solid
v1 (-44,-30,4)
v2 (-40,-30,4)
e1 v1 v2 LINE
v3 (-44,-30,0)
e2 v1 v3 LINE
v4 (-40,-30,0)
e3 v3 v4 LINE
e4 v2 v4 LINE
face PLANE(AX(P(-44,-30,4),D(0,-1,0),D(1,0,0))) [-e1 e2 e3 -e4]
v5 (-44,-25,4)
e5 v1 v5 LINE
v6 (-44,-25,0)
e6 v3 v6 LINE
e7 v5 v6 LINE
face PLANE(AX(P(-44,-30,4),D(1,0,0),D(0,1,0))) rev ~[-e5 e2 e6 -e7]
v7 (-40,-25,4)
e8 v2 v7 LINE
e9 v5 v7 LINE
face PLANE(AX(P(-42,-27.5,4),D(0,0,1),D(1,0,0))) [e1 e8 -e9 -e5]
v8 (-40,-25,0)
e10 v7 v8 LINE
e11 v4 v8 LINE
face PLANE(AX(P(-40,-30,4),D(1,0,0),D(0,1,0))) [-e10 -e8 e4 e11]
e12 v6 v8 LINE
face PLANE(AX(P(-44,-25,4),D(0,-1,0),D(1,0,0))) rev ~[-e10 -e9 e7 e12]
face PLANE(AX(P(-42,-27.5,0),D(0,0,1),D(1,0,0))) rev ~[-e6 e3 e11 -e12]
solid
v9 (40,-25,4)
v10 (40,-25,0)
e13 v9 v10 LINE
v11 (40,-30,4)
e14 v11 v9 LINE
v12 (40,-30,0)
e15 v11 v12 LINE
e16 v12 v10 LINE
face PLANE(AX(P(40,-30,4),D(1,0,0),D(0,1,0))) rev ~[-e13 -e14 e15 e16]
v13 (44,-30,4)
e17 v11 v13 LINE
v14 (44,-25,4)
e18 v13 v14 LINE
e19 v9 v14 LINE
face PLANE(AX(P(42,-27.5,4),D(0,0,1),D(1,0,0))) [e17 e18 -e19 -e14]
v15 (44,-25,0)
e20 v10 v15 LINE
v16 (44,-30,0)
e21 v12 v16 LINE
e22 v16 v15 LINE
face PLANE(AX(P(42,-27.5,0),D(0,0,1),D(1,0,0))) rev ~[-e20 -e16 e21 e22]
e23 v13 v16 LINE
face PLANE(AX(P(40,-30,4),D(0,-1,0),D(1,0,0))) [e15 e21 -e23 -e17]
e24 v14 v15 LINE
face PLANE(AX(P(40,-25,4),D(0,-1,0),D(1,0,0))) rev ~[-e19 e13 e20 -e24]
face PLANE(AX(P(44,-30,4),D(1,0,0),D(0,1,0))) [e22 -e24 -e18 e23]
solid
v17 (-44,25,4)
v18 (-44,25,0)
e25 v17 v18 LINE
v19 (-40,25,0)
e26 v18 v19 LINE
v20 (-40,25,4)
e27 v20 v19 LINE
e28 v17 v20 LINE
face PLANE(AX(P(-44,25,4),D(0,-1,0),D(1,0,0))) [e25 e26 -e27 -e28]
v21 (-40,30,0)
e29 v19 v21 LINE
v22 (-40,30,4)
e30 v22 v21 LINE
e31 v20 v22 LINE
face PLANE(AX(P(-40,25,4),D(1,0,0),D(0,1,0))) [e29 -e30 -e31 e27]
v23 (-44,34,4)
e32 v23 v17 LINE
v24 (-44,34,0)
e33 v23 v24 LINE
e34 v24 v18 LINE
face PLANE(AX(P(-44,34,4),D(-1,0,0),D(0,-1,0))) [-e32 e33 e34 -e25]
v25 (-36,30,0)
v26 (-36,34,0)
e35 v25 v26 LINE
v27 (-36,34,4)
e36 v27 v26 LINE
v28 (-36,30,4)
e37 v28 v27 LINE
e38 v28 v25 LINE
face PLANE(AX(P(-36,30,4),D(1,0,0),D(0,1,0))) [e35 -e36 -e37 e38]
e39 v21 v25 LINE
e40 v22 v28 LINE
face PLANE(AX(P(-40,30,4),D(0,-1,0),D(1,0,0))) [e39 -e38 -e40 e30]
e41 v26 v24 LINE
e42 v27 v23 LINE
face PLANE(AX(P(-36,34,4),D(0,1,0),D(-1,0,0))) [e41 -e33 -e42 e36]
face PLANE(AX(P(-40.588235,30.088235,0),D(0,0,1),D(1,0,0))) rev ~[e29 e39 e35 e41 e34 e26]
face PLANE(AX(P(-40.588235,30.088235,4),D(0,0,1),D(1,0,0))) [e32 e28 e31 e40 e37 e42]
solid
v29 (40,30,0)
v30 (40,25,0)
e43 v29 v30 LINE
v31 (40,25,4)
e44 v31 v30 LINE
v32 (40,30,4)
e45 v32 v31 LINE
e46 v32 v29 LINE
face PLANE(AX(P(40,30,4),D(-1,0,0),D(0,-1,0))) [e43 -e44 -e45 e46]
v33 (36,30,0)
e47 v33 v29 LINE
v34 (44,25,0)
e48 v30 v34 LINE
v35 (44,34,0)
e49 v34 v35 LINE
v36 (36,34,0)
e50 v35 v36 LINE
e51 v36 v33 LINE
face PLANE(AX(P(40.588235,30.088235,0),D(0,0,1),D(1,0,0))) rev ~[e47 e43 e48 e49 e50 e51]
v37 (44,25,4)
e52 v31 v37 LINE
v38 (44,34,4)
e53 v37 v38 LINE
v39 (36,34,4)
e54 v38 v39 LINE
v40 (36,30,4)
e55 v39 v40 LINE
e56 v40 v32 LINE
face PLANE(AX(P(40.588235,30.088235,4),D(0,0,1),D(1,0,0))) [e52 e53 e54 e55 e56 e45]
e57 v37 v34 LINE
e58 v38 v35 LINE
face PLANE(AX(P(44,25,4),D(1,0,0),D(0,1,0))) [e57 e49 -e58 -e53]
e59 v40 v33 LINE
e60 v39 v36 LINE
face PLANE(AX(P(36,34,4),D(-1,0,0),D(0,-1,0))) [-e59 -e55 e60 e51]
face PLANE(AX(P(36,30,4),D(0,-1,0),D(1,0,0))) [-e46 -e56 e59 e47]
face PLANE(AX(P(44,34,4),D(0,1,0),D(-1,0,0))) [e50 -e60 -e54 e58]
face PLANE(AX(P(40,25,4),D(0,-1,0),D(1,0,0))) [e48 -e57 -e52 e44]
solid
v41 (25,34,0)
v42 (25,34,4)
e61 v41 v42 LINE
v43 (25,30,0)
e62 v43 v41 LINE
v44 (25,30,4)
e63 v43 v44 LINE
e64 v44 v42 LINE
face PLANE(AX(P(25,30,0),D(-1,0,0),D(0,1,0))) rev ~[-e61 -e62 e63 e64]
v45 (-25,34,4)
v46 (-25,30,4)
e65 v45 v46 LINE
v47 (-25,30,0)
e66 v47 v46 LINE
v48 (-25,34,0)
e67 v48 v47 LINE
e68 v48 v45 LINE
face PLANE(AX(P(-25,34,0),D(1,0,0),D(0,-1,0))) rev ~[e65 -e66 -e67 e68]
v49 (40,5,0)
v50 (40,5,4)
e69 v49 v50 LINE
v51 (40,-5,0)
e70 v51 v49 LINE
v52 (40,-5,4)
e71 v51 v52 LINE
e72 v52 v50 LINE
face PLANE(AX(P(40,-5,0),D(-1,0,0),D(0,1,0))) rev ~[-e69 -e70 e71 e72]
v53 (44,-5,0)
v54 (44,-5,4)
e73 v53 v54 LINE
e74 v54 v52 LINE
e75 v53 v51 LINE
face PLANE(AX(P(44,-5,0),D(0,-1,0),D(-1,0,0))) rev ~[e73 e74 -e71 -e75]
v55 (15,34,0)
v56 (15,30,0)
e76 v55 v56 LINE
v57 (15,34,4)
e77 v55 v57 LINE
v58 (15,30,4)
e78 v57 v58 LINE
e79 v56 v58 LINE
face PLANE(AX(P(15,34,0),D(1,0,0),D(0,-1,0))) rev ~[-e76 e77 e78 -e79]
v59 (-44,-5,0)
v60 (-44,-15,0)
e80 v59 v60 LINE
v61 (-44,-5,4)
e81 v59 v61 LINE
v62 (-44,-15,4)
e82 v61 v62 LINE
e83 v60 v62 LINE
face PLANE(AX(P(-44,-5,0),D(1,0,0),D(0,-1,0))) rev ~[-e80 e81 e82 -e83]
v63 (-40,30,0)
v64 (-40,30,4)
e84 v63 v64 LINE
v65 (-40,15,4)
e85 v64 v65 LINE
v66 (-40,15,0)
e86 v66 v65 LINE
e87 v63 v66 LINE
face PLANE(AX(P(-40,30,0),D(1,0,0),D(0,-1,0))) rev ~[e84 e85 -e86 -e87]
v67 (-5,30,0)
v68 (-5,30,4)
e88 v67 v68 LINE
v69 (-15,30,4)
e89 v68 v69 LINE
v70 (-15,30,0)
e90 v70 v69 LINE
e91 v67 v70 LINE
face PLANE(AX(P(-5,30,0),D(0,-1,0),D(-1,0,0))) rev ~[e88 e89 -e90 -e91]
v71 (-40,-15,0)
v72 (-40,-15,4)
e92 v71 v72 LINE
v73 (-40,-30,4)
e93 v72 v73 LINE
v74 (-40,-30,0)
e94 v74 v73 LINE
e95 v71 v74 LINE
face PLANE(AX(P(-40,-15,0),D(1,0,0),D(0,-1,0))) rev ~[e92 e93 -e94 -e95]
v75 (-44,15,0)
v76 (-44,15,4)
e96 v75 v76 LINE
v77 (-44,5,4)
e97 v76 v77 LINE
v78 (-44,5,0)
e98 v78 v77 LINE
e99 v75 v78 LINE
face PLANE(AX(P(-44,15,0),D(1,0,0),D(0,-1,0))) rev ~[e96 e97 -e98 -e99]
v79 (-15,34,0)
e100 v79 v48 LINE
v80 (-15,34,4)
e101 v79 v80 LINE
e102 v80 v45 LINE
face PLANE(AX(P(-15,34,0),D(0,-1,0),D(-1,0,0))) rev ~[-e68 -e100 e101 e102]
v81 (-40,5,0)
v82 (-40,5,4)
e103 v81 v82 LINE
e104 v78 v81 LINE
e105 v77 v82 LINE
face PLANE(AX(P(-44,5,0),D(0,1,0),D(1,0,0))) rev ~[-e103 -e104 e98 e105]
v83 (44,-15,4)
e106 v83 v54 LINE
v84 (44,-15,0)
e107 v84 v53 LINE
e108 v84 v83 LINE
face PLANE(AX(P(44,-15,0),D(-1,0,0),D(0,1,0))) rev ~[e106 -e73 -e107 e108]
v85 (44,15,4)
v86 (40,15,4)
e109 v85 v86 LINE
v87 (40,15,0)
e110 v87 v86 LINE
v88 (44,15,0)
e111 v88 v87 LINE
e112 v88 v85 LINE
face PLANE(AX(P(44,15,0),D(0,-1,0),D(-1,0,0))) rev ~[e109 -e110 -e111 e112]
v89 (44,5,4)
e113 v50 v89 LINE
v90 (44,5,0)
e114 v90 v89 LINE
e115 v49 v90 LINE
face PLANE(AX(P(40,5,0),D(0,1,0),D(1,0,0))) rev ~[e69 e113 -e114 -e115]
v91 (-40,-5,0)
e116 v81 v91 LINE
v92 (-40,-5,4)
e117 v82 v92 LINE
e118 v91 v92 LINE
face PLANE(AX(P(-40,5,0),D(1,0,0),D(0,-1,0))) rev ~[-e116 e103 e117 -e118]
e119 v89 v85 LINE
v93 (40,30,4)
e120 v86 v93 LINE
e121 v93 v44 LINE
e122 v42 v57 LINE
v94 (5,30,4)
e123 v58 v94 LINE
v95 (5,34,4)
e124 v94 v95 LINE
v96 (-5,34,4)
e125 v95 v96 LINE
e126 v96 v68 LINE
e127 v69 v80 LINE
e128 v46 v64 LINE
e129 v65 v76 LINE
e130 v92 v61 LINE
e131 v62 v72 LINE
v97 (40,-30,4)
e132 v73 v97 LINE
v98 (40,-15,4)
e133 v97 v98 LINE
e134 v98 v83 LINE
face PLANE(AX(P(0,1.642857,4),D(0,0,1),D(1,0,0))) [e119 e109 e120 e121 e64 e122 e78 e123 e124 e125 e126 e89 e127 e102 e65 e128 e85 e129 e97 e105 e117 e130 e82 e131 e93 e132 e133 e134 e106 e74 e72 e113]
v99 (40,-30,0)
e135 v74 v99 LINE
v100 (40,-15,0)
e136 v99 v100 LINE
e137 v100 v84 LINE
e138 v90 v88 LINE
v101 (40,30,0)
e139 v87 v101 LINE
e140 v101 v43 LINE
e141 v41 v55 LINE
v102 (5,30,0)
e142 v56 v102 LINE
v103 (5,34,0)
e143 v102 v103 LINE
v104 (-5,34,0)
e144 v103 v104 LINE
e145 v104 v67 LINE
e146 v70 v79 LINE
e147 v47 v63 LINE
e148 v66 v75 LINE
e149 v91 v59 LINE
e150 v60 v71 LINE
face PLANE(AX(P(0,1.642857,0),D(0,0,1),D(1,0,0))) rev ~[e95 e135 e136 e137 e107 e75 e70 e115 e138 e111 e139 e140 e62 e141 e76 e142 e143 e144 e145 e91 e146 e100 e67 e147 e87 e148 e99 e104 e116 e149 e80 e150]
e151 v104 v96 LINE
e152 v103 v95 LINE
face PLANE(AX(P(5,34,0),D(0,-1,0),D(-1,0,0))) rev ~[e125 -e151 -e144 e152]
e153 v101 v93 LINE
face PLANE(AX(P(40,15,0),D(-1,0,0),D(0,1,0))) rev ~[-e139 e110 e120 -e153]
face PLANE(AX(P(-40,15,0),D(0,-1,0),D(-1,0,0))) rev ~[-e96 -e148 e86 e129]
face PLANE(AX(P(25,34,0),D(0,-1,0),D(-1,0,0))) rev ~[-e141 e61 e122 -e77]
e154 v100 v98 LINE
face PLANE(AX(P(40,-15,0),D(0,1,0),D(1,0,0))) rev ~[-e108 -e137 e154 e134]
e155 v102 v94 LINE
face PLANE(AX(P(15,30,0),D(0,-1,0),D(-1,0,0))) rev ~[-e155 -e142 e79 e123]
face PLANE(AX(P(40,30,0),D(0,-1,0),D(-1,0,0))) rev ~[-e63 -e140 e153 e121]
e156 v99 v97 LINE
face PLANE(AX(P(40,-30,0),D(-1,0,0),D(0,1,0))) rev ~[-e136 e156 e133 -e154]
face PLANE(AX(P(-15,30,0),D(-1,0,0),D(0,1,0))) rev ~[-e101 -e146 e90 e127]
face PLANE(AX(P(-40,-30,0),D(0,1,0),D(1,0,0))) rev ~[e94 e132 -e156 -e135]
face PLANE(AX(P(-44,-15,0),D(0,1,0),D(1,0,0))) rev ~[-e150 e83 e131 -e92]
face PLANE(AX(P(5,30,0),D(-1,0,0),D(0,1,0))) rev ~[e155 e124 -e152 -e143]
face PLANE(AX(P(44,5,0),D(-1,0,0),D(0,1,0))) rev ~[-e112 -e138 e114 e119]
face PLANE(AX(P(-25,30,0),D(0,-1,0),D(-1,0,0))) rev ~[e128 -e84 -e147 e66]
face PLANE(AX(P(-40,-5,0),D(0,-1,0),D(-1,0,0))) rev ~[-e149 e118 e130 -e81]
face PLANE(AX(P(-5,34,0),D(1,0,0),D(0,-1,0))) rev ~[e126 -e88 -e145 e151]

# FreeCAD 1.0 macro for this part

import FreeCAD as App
import Part
import Sketcher
from FreeCAD import Vector

doc = App.newDocument("Part")
body = doc.addObject("PartDesign::Body", "Body")

sketch1 = body.newObject("Sketcher::SketchObject", "Sketch")
sketch1.AttachmentSupport = (doc.getObject("XY_Plane"), [""])
sketch1.MapMode = "FlatFace"
sketch1.addGeometry([
    Part.LineSegment(Vector(-40, 30, 0), Vector(-40, 15, 0)),
    Part.LineSegment(Vector(-40, 15, 0), Vector(-44, 15, 0)),
    Part.LineSegment(Vector(-44, 15, 0), Vector(-44, 5, 0)),
    Part.LineSegment(Vector(-44, 5, 0), Vector(-40, 5, 0)),
    Part.LineSegment(Vector(-40, 5, 0), Vector(-40, -5, 0)),
    Part.LineSegment(Vector(-40, -5, 0), Vector(-44, -5, 0)),
    Part.LineSegment(Vector(-44, -5, 0), Vector(-44, -15, 0)),
    Part.LineSegment(Vector(-44, -15, 0), Vector(-40, -15, 0)),
    Part.LineSegment(Vector(-40, -15, 0), Vector(-40, -30, 0)),
    Part.LineSegment(Vector(-40, -30, 0), Vector(40, -30, 0)),
    Part.LineSegment(Vector(40, -30, 0), Vector(40, -15, 0)),
    Part.LineSegment(Vector(40, -15, 0), Vector(44, -15, 0)),
    Part.LineSegment(Vector(44, -15, 0), Vector(44, -5, 0)),
    Part.LineSegment(Vector(44, -5, 0), Vector(40, -5, 0)),
    Part.LineSegment(Vector(40, -5, 0), Vector(40, 5, 0)),
    Part.LineSegment(Vector(40, 5, 0), Vector(44, 5, 0)),
    Part.LineSegment(Vector(44, 5, 0), Vector(44, 15, 0)),
    Part.LineSegment(Vector(44, 15, 0), Vector(40, 15, 0)),
    Part.LineSegment(Vector(40, 15, 0), Vector(40, 30, 0)),
    Part.LineSegment(Vector(40, 30, 0), Vector(25, 30, 0)),
    Part.LineSegment(Vector(25, 30, 0), Vector(25, 34, 0)),
    Part.LineSegment(Vector(25, 34, 0), Vector(15, 34, 0)),
    Part.LineSegment(Vector(15, 34, 0), Vector(15, 30, 0)),
    Part.LineSegment(Vector(15, 30, 0), Vector(5, 30, 0)),
    Part.LineSegment(Vector(5, 30, 0), Vector(5, 34, 0)),
    Part.LineSegment(Vector(5, 34, 0), Vector(-5, 34, 0)),
    Part.LineSegment(Vector(-5, 34, 0), Vector(-5, 30, 0)),
    Part.LineSegment(Vector(-5, 30, 0), Vector(-15, 30, 0)),
    Part.LineSegment(Vector(-15, 30, 0), Vector(-15, 34, 0)),
    Part.LineSegment(Vector(-15, 34, 0), Vector(-25, 34, 0)),
    Part.LineSegment(Vector(-25, 34, 0), Vector(-25, 30, 0)),
    Part.LineSegment(Vector(-25, 30, 0), Vector(-40, 30, 0)),
], False)
sketch1.addConstraint([
    Sketcher.Constraint("Coincident", 0, 2, 1, 1),
    Sketcher.Constraint("Coincident", 1, 2, 2, 1),
    Sketcher.Constraint("Coincident", 2, 2, 3, 1),
    Sketcher.Constraint("Coincident", 3, 2, 4, 1),
    Sketcher.Constraint("Coincident", 4, 2, 5, 1),
    Sketcher.Constraint("Coincident", 5, 2, 6, 1),
    Sketcher.Constraint("Coincident", 6, 2, 7, 1),
    Sketcher.Constraint("Coincident", 7, 2, 8, 1),
    Sketcher.Constraint("Coincident", 8, 2, 9, 1),
    Sketcher.Constraint("Coincident", 9, 2, 10, 1),
    Sketcher.Constraint("Coincident", 10, 2, 11, 1),
    Sketcher.Constraint("Coincident", 11, 2, 12, 1),
    Sketcher.Constraint("Coincident", 12, 2, 13, 1),
    Sketcher.Constraint("Coincident", 13, 2, 14, 1),
    Sketcher.Constraint("Coincident", 14, 2, 15, 1),
    Sketcher.Constraint("Coincident", 15, 2, 16, 1),
    Sketcher.Constraint("Coincident", 16, 2, 17, 1),
    Sketcher.Constraint("Coincident", 17, 2, 18, 1),
    Sketcher.Constraint("Coincident", 18, 2, 19, 1),
    Sketcher.Constraint("Coincident", 19, 2, 20, 1),
    Sketcher.Constraint("Coincident", 20, 2, 21, 1),
    Sketcher.Constraint("Coincident", 21, 2, 22, 1),
    Sketcher.Constraint("Coincident", 22, 2, 23, 1),
    Sketcher.Constraint("Coincident", 23, 2, 24, 1),
    Sketcher.Constraint("Coincident", 24, 2, 25, 1),
    Sketcher.Constraint("Coincident", 25, 2, 26, 1),
    Sketcher.Constraint("Coincident", 26, 2, 27, 1),
    Sketcher.Constraint("Coincident", 27, 2, 28, 1),
    Sketcher.Constraint("Coincident", 28, 2, 29, 1),
    Sketcher.Constraint("Coincident", 29, 2, 30, 1),
    Sketcher.Constraint("Coincident", 30, 2, 31, 1),
    Sketcher.Constraint("Coincident", 31, 2, 0, 1),
    Sketcher.Constraint("Vertical", 0),
    Sketcher.Constraint("Horizontal", 1),
    Sketcher.Constraint("Vertical", 2),
    Sketcher.Constraint("Horizontal", 3),
    Sketcher.Constraint("Vertical", 4),
    Sketcher.Constraint("Horizontal", 5),
    Sketcher.Constraint("Vertical", 6),
    Sketcher.Constraint("Horizontal", 7),
    Sketcher.Constraint("Vertical", 8),
    Sketcher.Constraint("Horizontal", 9),
    Sketcher.Constraint("Vertical", 10),
    Sketcher.Constraint("Horizontal", 11),
    Sketcher.Constraint("Vertical", 12),
    Sketcher.Constraint("Horizontal", 13),
    Sketcher.Constraint("Vertical", 14),
    Sketcher.Constraint("Horizontal", 15),
    Sketcher.Constraint("Vertical", 16),
    Sketcher.Constraint("Horizontal", 17),
    Sketcher.Constraint("Vertical", 18),
    Sketcher.Constraint("Horizontal", 19),
    Sketcher.Constraint("Vertical", 20),
    Sketcher.Constraint("Horizontal", 21),
    Sketcher.Constraint("Vertical", 22),
    Sketcher.Constraint("Horizontal", 23),
    Sketcher.Constraint("Vertical", 24),
    Sketcher.Constraint("Horizontal", 25),
    Sketcher.Constraint("Vertical", 26),
    Sketcher.Constraint("Horizontal", 27),
    Sketcher.Constraint("Vertical", 28),
    Sketcher.Constraint("Horizontal", 29),
    Sketcher.Constraint("Vertical", 30),
    Sketcher.Constraint("Horizontal", 31),
    Sketcher.Constraint("Symmetric", 0, 2, 10, 2, -1, 1),
    Sketcher.Constraint("Symmetric", 2, 2, 12, 2, -1, 1),
    Sketcher.Constraint("Symmetric", 4, 2, 14, 2, -1, 1),
    Sketcher.Constraint("Symmetric", 6, 2, 16, 2, -1, 1),
    Sketcher.Constraint("Symmetric", 8, 2, 18, 2, -1, 1),
    Sketcher.Constraint("Symmetric", 7, 2, 10, 2, -2),
    Sketcher.Constraint("Symmetric", 5, 2, 12, 2, -2),
    Sketcher.Constraint("Symmetric", 23, 2, 26, 2, -2),
    Sketcher.Constraint("Symmetric", 21, 2, 28, 2, -2),
    Sketcher.Constraint("Symmetric", 19, 2, 30, 2, -2),
    Sketcher.Constraint("Horizontal", 19, 2, 22, 2),
    Sketcher.Constraint("Horizontal", 21, 2, 24, 2),
    Sketcher.Constraint("Vertical", 0, 2, 3, 2),
    Sketcher.Constraint("Equal", 21, 23),
    Sketcher.Constraint("Equal", 23, 25),
    Sketcher.Constraint("Equal", 31, 0),
    Sketcher.Constraint("Equal", 29, 2),
    Sketcher.Constraint("Equal", 2, 4),
    Sketcher.Constraint("Equal", 17, 20),
    Sketcher.Constraint("DistanceX", 1, 2, 1, 1, 4.0),
    Sketcher.Constraint("DistanceX", 9, 1, 9, 2, 80.0),
    Sketcher.Constraint("DistanceX", 19, 2, 19, 1, 15.0),
])
pad1 = body.newObject("PartDesign::Pad", "Pad")
pad1.Profile = sketch1
pad1.Length = 4
body2 = doc.addObject("PartDesign::Body", "Body001")

sketch2 = body2.newObject("Sketcher::SketchObject", "Sketch001")
sketch2.AttachmentSupport = (doc.getObject("XY_Plane001"), [""])
sketch2.MapMode = "FlatFace"
sketch2.AttachmentOffset = App.Placement(Vector(0, 0, 4), App.Rotation())
sketch2.addGeometry([
    Part.LineSegment(Vector(-44, 34, 0), Vector(-44, 25, 0)),
    Part.LineSegment(Vector(-44, 25, 0), Vector(-40, 25, 0)),
    Part.LineSegment(Vector(-40, 25, 0), Vector(-40, 30, 0)),
    Part.LineSegment(Vector(-40, 30, 0), Vector(-36, 30, 0)),
    Part.LineSegment(Vector(-36, 30, 0), Vector(-36, 34, 0)),
    Part.LineSegment(Vector(-36, 34, 0), Vector(-44, 34, 0)),
], False)
sketch2.addConstraint([
    Sketcher.Constraint("Coincident", 0, 2, 1, 1),
    Sketcher.Constraint("Coincident", 1, 2, 2, 1),
    Sketcher.Constraint("Coincident", 2, 2, 3, 1),
    Sketcher.Constraint("Coincident", 3, 2, 4, 1),
    Sketcher.Constraint("Coincident", 4, 2, 5, 1),
    Sketcher.Constraint("Coincident", 5, 2, 0, 1),
    Sketcher.Constraint("Vertical", 0),
    Sketcher.Constraint("Horizontal", 1),
    Sketcher.Constraint("Vertical", 2),
    Sketcher.Constraint("Horizontal", 3),
    Sketcher.Constraint("Vertical", 4),
    Sketcher.Constraint("Horizontal", 5),
    Sketcher.Constraint("Equal", 1, 3),
    Sketcher.Constraint("Equal", 3, 4),
    Sketcher.Constraint("DistanceX", 1, 1, 1, 2, 4.0),
    Sketcher.Constraint("DistanceY", 0, 2, 0, 1, 9.0),
    Sketcher.Constraint("DistanceX", 0, 2, -1, 1, 44.0),
    Sketcher.Constraint("DistanceY", -1, 1, 0, 2, 25.0),
])
pad2 = body2.newObject("PartDesign::Pad", "Pad001")
pad2.Profile = sketch2
pad2.Length = 4
pad2.Reversed = True
body3 = doc.addObject("PartDesign::Body", "Body002")

sketch3 = body3.newObject("Sketcher::SketchObject", "Sketch002")
sketch3.AttachmentSupport = (doc.getObject("XY_Plane002"), [""])
sketch3.MapMode = "FlatFace"
sketch3.AttachmentOffset = App.Placement(Vector(0, 0, 4), App.Rotation())
sketch3.addGeometry([
    Part.LineSegment(Vector(40, 30, 0), Vector(40, 25, 0)),
    Part.LineSegment(Vector(40, 25, 0), Vector(44, 25, 0)),
    Part.LineSegment(Vector(44, 25, 0), Vector(44, 34, 0)),
    Part.LineSegment(Vector(44, 34, 0), Vector(36, 34, 0)),
    Part.LineSegment(Vector(36, 34, 0), Vector(36, 30, 0)),
    Part.LineSegment(Vector(36, 30, 0), Vector(40, 30, 0)),
], False)
sketch3.addConstraint([
    Sketcher.Constraint("Coincident", 0, 2, 1, 1),
    Sketcher.Constraint("Coincident", 1, 2, 2, 1),
    Sketcher.Constraint("Coincident", 2, 2, 3, 1),
    Sketcher.Constraint("Coincident", 3, 2, 4, 1),
    Sketcher.Constraint("Coincident", 4, 2, 5, 1),
    Sketcher.Constraint("Coincident", 5, 2, 0, 1),
    Sketcher.Constraint("Vertical", 0),
    Sketcher.Constraint("Horizontal", 1),
    Sketcher.Constraint("Vertical", 2),
    Sketcher.Constraint("Horizontal", 3),
    Sketcher.Constraint("Vertical", 4),
    Sketcher.Constraint("Horizontal", 5),
    Sketcher.Constraint("Equal", 1, 5),
    Sketcher.Constraint("Equal", 5, 4),
    Sketcher.Constraint("DistanceX", 1, 1, 1, 2, 4.0),
    Sketcher.Constraint("DistanceY", 0, 2, 0, 1, 5.0),
    Sketcher.Constraint("DistanceX", -1, 1, 0, 2, 40.0),
    Sketcher.Constraint("DistanceY", -1, 1, 0, 2, 25.0),
])
pad3 = body3.newObject("PartDesign::Pad", "Pad002")
pad3.Profile = sketch3
pad3.Length = 4
pad3.Reversed = True
body4 = doc.addObject("PartDesign::Body", "Body003")

sketch4 = body4.newObject("Sketcher::SketchObject", "Sketch003")
sketch4.AttachmentSupport = (doc.getObject("XY_Plane003"), [""])
sketch4.MapMode = "FlatFace"
sketch4.AttachmentOffset = App.Placement(Vector(0, 0, 4), App.Rotation())
sketch4.addGeometry([
    Part.LineSegment(Vector(40, -25, 0), Vector(40, -30, 0)),
    Part.LineSegment(Vector(40, -30, 0), Vector(44, -30, 0)),
    Part.LineSegment(Vector(44, -30, 0), Vector(44, -25, 0)),
    Part.LineSegment(Vector(44, -25, 0), Vector(40, -25, 0)),
], False)
sketch4.addConstraint([
    Sketcher.Constraint("Coincident", 0, 2, 1, 1),
    Sketcher.Constraint("Coincident", 1, 2, 2, 1),
    Sketcher.Constraint("Coincident", 2, 2, 3, 1),
    Sketcher.Constraint("Coincident", 3, 2, 0, 1),
    Sketcher.Constraint("Vertical", 0),
    Sketcher.Constraint("Horizontal", 1),
    Sketcher.Constraint("Vertical", 2),
    Sketcher.Constraint("Horizontal", 3),
    Sketcher.Constraint("DistanceX", 1, 1, 1, 2, 4.0),
    Sketcher.Constraint("DistanceY", 0, 2, 0, 1, 5.0),
    Sketcher.Constraint("DistanceX", -1, 1, 0, 2, 40.0),
    Sketcher.Constraint("DistanceY", 0, 2, -1, 1, 30.0),
])
pad4 = body4.newObject("PartDesign::Pad", "Pad003")
pad4.Profile = sketch4
pad4.Length = 4
pad4.Reversed = True
body5 = doc.addObject("PartDesign::Body", "Body004")

sketch5 = body5.newObject("Sketcher::SketchObject", "Sketch004")
sketch5.AttachmentSupport = (doc.getObject("XY_Plane004"), [""])
sketch5.MapMode = "FlatFace"
sketch5.AttachmentOffset = App.Placement(Vector(0, 0, 4), App.Rotation())
sketch5.addGeometry([
    Part.LineSegment(Vector(-44, -25, 0), Vector(-44, -30, 0)),
    Part.LineSegment(Vector(-44, -30, 0), Vector(-40, -30, 0)),
    Part.LineSegment(Vector(-40, -30, 0), Vector(-40, -25, 0)),
    Part.LineSegment(Vector(-40, -25, 0), Vector(-44, -25, 0)),
], False)
sketch5.addConstraint([
    Sketcher.Constraint("Coincident", 0, 2, 1, 1),
    Sketcher.Constraint("Coincident", 1, 2, 2, 1),
    Sketcher.Constraint("Coincident", 2, 2, 3, 1),
    Sketcher.Constraint("Coincident", 3, 2, 0, 1),
    Sketcher.Constraint("Vertical", 0),
    Sketcher.Constraint("Horizontal", 1),
    Sketcher.Constraint("Vertical", 2),
    Sketcher.Constraint("Horizontal", 3),
    Sketcher.Constraint("DistanceX", 1, 1, 1, 2, 4.0),
    Sketcher.Constraint("DistanceY", 0, 2, 0, 1, 5.0),
    Sketcher.Constraint("DistanceX", 0, 2, -1, 1, 44.0),
    Sketcher.Constraint("DistanceY", 0, 2, -1, 1, 30.0),
])
pad5 = body5.newObject("PartDesign::Pad", "Pad004")
pad5.Profile = sketch5
pad5.Length = 4
pad5.Reversed = True

doc.recompute()
